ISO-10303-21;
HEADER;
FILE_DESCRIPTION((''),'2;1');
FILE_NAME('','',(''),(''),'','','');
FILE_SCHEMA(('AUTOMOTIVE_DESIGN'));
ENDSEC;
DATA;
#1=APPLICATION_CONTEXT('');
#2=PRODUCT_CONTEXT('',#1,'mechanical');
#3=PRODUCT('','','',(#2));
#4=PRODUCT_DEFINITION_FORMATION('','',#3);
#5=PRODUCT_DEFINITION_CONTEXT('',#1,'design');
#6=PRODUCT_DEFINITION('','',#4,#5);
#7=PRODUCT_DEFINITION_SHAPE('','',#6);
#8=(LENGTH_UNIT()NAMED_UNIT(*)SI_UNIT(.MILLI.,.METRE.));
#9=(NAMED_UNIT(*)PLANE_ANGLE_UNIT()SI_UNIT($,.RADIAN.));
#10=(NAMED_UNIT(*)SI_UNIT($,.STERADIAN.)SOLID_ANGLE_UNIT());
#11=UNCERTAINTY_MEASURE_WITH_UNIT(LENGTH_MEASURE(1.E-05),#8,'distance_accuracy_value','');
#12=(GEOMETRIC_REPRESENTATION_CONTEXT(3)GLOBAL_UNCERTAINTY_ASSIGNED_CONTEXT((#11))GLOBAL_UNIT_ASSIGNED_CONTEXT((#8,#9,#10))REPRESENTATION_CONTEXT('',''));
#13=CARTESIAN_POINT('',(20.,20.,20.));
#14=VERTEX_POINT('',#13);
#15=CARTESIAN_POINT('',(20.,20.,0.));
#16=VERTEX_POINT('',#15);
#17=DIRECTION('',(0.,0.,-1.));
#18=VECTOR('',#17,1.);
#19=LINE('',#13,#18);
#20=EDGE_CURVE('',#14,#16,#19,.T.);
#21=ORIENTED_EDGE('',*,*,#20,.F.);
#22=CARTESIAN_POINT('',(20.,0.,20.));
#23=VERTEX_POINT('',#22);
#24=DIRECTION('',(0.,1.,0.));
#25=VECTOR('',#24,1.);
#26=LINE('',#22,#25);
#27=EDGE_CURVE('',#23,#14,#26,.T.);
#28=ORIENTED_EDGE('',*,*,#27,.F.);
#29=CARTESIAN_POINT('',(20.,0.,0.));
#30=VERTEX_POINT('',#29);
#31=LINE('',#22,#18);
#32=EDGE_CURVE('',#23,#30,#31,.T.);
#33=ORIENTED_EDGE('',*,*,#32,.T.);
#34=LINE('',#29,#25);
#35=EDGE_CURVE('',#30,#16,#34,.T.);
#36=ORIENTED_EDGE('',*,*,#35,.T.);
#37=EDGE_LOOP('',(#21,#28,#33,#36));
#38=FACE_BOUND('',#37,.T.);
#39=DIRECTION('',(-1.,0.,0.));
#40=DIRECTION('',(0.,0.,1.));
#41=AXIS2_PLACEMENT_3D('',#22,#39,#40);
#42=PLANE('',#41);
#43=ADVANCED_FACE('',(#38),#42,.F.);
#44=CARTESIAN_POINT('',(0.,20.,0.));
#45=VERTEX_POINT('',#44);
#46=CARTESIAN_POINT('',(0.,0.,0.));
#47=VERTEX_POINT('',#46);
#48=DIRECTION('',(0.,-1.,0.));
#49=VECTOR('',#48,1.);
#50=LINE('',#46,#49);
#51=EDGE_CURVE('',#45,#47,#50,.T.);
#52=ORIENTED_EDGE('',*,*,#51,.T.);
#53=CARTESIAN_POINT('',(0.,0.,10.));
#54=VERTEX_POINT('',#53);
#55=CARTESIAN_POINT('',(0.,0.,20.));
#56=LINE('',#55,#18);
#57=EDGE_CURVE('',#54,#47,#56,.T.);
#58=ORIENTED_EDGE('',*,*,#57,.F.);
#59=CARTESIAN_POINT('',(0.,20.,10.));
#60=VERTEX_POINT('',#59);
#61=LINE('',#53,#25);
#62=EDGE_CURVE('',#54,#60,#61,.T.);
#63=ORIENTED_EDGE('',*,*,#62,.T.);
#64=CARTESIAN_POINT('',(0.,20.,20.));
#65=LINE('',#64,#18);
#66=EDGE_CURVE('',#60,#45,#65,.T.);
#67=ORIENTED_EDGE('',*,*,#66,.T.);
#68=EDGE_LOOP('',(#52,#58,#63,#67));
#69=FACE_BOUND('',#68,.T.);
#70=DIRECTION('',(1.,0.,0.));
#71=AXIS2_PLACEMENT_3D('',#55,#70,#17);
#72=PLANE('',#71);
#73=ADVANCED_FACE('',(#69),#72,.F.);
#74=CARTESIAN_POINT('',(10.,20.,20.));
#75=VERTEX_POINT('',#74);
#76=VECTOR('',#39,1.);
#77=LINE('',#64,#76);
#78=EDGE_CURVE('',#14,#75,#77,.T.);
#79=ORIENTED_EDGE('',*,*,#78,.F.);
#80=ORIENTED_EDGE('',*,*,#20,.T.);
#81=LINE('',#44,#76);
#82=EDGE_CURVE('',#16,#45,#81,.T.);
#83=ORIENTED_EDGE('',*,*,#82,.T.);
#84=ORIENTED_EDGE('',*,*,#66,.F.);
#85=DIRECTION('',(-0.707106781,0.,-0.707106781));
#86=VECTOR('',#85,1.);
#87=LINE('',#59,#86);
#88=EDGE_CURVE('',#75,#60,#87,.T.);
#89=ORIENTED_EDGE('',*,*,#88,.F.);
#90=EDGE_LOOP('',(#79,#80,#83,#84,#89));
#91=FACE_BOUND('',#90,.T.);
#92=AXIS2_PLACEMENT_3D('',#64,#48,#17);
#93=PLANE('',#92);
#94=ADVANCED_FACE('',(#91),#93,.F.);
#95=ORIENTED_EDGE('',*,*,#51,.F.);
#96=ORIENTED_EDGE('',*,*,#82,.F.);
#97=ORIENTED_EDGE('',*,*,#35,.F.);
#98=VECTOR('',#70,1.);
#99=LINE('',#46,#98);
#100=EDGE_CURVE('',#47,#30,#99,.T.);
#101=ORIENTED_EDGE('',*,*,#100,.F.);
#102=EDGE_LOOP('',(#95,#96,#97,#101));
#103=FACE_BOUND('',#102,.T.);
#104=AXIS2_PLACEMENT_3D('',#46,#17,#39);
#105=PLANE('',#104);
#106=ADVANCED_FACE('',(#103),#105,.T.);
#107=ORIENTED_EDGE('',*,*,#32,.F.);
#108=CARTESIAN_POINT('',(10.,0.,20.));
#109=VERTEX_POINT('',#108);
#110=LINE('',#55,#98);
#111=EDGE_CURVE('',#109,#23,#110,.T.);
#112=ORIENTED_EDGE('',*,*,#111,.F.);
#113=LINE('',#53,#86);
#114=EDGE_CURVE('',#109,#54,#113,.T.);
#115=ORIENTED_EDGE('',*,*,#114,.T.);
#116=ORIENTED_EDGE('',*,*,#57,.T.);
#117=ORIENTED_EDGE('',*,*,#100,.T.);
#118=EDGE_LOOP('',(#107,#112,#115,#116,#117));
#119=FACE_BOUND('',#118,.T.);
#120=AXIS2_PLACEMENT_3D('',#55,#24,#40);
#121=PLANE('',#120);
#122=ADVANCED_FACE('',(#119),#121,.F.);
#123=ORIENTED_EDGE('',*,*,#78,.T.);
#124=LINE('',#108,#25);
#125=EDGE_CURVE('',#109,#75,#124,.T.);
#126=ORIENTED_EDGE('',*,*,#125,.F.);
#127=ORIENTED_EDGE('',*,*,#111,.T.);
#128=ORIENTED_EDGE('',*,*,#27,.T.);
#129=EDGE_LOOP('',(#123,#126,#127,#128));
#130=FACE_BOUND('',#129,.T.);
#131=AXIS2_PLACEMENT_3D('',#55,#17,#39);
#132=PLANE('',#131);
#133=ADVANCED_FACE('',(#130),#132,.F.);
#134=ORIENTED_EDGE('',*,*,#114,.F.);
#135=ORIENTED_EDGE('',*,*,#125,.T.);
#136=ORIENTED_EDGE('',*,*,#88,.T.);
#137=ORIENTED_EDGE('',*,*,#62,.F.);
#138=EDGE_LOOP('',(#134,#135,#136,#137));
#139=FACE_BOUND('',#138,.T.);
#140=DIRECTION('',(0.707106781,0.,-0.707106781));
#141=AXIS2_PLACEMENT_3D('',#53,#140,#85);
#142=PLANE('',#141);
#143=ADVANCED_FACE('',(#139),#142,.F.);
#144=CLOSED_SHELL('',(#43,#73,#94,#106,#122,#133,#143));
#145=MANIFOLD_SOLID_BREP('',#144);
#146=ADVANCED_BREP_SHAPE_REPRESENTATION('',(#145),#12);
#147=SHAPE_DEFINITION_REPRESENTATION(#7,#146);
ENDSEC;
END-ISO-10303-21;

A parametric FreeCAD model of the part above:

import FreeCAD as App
import Part
import Sketcher
from FreeCAD import Vector
Q = App.Units.Quantity

doc = App.newDocument("Part")
body = doc.addObject("PartDesign::Body", "Body")

# Sketch on XY plane
sketch1 = body.newObject("Sketcher::SketchObject", "Sketch")
sketch1.AttachmentSupport = (doc.getObject("XY_Plane"), [""])
sketch1.MapMode = "FlatFace"
sketch1.addGeometry([
    Part.LineSegment(Vector(0, 20, 0), Vector(0, 0, 0)),
    Part.LineSegment(Vector(0, 0, 0), Vector(20, 0, 0)),
    Part.LineSegment(Vector(20, 0, 0), Vector(20, 20, 0)),
    Part.LineSegment(Vector(20, 20, 0), Vector(0, 20, 0)),
], False)
sketch1.addConstraint([
    Sketcher.Constraint("Coincident", 0, 2, 1, 1),
    Sketcher.Constraint("Coincident", 1, 2, 2, 1),
    Sketcher.Constraint("Coincident", 2, 2, 3, 1),
    Sketcher.Constraint("Coincident", 3, 2, 0, 1),
    Sketcher.Constraint("Vertical", 0),
    Sketcher.Constraint("Horizontal", 1),
    Sketcher.Constraint("Vertical", 2),
    Sketcher.Constraint("Horizontal", 3),
    Sketcher.Constraint("Coincident", 0, 2, -1, 1),
    Sketcher.Constraint("Equal", 3, 0),
    Sketcher.Constraint("DistanceX", 1, 1, 1, 2, Q("20 mm")),
])
pad1 = body.newObject("PartDesign::Pad", "Pad")
pad1.Profile = sketch1
pad1.Length = 20

# Sketch on XZ plane
sketch2 = body.newObject("Sketcher::SketchObject", "Sketch001")
sketch2.AttachmentSupport = (doc.getObject("XZ_Plane"), [""])
sketch2.MapMode = "FlatFace"
sketch2.AttachmentOffset = App.Placement(Vector(0, 0, -20), App.Rotation())
sketch2.addGeometry([
    Part.LineSegment(Vector(10, 20, 0), Vector(0, 10, 0)),
    Part.LineSegment(Vector(0, 10, 0), Vector(0, 20, 0)),
    Part.LineSegment(Vector(0, 20, 0), Vector(10, 20, 0)),
], False)
sketch2.addConstraint([
    Sketcher.Constraint("Coincident", 0, 2, 1, 1),
    Sketcher.Constraint("Coincident", 1, 2, 2, 1),
    Sketcher.Constraint("Coincident", 2, 2, 0, 1),
    Sketcher.Constraint("Vertical", 1),
    Sketcher.Constraint("Horizontal", 2),
    Sketcher.Constraint("PointOnObject", 0, 2, -2),
    Sketcher.Constraint("Equal", 2, 1),
    Sketcher.Constraint("DistanceX", 2, 1, 2, 2, Q("10 mm")),
    Sketcher.Constraint("DistanceY", -1, 1, 0, 2, Q("10 mm")),
])
pocket1 = body.newObject("PartDesign::Pocket", "Pocket")
pocket1.Profile = sketch2
pocket1.Length = 20
pocket1.Reversed = True

doc.recompute()
